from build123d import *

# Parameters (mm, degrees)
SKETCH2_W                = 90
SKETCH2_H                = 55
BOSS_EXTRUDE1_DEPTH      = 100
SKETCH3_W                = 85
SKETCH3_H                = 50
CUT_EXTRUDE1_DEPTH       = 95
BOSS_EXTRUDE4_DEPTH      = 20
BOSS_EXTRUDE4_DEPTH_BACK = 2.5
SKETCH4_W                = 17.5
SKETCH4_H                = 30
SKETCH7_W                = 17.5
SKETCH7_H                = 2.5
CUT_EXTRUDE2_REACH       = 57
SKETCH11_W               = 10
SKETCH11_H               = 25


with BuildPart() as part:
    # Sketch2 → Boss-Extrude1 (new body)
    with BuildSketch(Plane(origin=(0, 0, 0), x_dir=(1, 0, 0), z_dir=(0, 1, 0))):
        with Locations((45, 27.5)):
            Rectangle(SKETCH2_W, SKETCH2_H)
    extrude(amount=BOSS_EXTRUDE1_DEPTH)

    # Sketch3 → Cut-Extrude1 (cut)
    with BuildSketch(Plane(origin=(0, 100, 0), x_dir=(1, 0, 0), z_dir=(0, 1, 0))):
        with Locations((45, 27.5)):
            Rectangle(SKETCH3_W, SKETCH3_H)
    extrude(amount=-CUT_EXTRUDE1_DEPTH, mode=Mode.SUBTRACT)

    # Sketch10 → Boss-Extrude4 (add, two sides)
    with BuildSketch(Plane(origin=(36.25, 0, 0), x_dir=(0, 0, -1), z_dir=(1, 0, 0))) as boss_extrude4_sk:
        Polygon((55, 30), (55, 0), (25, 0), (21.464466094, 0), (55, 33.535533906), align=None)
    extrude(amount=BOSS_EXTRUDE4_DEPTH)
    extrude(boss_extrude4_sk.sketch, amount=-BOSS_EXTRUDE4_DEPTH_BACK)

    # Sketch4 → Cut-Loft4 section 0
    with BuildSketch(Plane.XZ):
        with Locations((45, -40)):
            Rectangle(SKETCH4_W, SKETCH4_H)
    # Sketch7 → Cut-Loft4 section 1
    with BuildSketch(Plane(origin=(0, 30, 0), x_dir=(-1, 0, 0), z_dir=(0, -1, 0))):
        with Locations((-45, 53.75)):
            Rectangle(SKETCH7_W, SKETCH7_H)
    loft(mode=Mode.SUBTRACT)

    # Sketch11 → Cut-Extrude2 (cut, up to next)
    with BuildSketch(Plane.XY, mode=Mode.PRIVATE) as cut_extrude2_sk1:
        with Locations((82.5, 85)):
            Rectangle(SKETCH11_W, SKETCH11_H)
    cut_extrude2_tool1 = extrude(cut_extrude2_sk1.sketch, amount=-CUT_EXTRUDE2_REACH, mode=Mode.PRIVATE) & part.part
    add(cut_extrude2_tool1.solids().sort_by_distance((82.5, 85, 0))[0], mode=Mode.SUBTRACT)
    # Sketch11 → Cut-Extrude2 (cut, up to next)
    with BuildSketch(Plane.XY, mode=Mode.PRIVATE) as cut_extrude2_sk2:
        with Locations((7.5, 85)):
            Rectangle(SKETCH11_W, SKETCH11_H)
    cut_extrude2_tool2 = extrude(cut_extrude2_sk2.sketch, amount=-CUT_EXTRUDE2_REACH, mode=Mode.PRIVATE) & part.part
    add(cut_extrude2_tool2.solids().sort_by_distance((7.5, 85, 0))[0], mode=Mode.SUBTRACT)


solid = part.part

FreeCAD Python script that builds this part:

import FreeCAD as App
import Part
import Sketcher
from FreeCAD import Vector
Q = App.Units.Quantity

doc = App.newDocument("Part")
body = doc.addObject("PartDesign::Body", "Body")

# Sketch on XZ plane
sketch1 = body.newObject("Sketcher::SketchObject", "Sketch")
sketch1.AttachmentSupport = (doc.getObject("XZ_Plane"), [""])
sketch1.MapMode = "FlatFace"
sketch1.addGeometry([
    Part.LineSegment(Vector(0, -55, 0), Vector(0, 0, 0)),
    Part.LineSegment(Vector(0, 0, 0), Vector(90, 0, 0)),
    Part.LineSegment(Vector(90, 0, 0), Vector(90, -55, 0)),
    Part.LineSegment(Vector(90, -55, 0), Vector(0, -55, 0)),
], False)
sketch1.addConstraint([
    Sketcher.Constraint("Coincident", 0, 2, 1, 1),
    Sketcher.Constraint("Coincident", 1, 2, 2, 1),
    Sketcher.Constraint("Coincident", 2, 2, 3, 1),
    Sketcher.Constraint("Coincident", 3, 2, 0, 1),
    Sketcher.Constraint("Vertical", 0),
    Sketcher.Constraint("Horizontal", 1),
    Sketcher.Constraint("Vertical", 2),
    Sketcher.Constraint("Horizontal", 3),
    Sketcher.Constraint("Coincident", 0, 2, -1, 1),
    Sketcher.Constraint("DistanceX", 1, 1, 1, 2, Q("90 mm")),
    Sketcher.Constraint("DistanceY", 0, 1, 0, 2, Q("55 mm")),
])
pad1 = body.newObject("PartDesign::Pad", "Pad")
pad1.Profile = sketch1
pad1.Length = 100
pad1.Reversed = True

# Sketch on XZ plane
sketch2 = body.newObject("Sketcher::SketchObject", "Sketch001")
sketch2.AttachmentSupport = (doc.getObject("XZ_Plane"), [""])
sketch2.MapMode = "FlatFace"
sketch2.AttachmentOffset = App.Placement(Vector(0, 0, -100), App.Rotation())
sketch2.addGeometry([
    Part.LineSegment(Vector(2.5, -52.5, 0), Vector(2.5, -2.5, 0)),
    Part.LineSegment(Vector(2.5, -2.5, 0), Vector(87.5, -2.5, 0)),
    Part.LineSegment(Vector(87.5, -2.5, 0), Vector(87.5, -52.5, 0)),
    Part.LineSegment(Vector(87.5, -52.5, 0), Vector(2.5, -52.5, 0)),
], False)
sketch2.addConstraint([
    Sketcher.Constraint("Coincident", 0, 2, 1, 1),
    Sketcher.Constraint("Coincident", 1, 2, 2, 1),
    Sketcher.Constraint("Coincident", 2, 2, 3, 1),
    Sketcher.Constraint("Coincident", 3, 2, 0, 1),
    Sketcher.Constraint("Vertical", 0),
    Sketcher.Constraint("Horizontal", 1),
    Sketcher.Constraint("Vertical", 2),
    Sketcher.Constraint("Horizontal", 3),
    Sketcher.Constraint("DistanceX", 1, 1, 1, 2, Q("85 mm")),
    Sketcher.Constraint("DistanceY", 0, 1, 0, 2, Q("50 mm")),
    Sketcher.Constraint("DistanceX", -1, 1, 0, 2, Q("2.5 mm")),
    Sketcher.Constraint("DistanceY", 0, 2, -1, 1, Q("2.5 mm")),
])
pocket1 = body.newObject("PartDesign::Pocket", "Pocket")
pocket1.Profile = sketch2
pocket1.Length = 95
pocket1.Reversed = True

# Sketch on YZ plane
sketch3 = body.newObject("Sketcher::SketchObject", "Sketch002")
sketch3.AttachmentSupport = (doc.getObject("YZ_Plane"), [""])
sketch3.MapMode = "FlatFace"
sketch3.AttachmentOffset = App.Placement(Vector(0, 0, 36.25), App.Rotation())
sketch3.addGeometry([
    Part.LineSegment(Vector(0, -55, 0), Vector(33.535534, -55, 0)),
    Part.LineSegment(Vector(33.535534, -55, 0), Vector(0, -21.464466, 0)),
    Part.LineSegment(Vector(0, -21.464466, 0), Vector(0, -55, 0)),
], False)
sketch3.addConstraint([
    Sketcher.Constraint("Coincident", 0, 2, 1, 1),
    Sketcher.Constraint("Coincident", 1, 2, 2, 1),
    Sketcher.Constraint("Coincident", 2, 2, 0, 1),
    Sketcher.Constraint("Horizontal", 0),
    Sketcher.Constraint("Vertical", 2),
    Sketcher.Constraint("PointOnObject", 1, 2, -2),
    Sketcher.Constraint("Equal", 0, 2),
    Sketcher.Constraint("DistanceY", 0, 2, -1, 1, Q("55 mm")),
    Sketcher.Constraint("DistanceX", 0, 1, 0, 2, Q("33.535534 mm")),
])
pad2 = body.newObject("PartDesign::Pad", "Pad001")
pad2.Profile = sketch3
pad2.Type = "TwoLengths"
pad2.Length = 20
pad2.Length2 = 2.5

# Sketch on XZ plane
sketch4 = body.newObject("Sketcher::SketchObject", "Sketch003")
sketch4.AttachmentSupport = (doc.getObject("XZ_Plane"), [""])
sketch4.MapMode = "FlatFace"
sketch4.addGeometry([
    Part.LineSegment(Vector(36.25, -25, 0), Vector(36.25, -55, 0)),
    Part.LineSegment(Vector(36.25, -55, 0), Vector(53.75, -55, 0)),
    Part.LineSegment(Vector(53.75, -55, 0), Vector(53.75, -25, 0)),
    Part.LineSegment(Vector(53.75, -25, 0), Vector(36.25, -25, 0)),
], False)
sketch4.addConstraint([
    Sketcher.Constraint("Coincident", 0, 2, 1, 1),
    Sketcher.Constraint("Coincident", 1, 2, 2, 1),
    Sketcher.Constraint("Coincident", 2, 2, 3, 1),
    Sketcher.Constraint("Coincident", 3, 2, 0, 1),
    Sketcher.Constraint("Vertical", 0),
    Sketcher.Constraint("Horizontal", 1),
    Sketcher.Constraint("Vertical", 2),
    Sketcher.Constraint("Horizontal", 3),
    Sketcher.Constraint("DistanceY", 0, 2, 0, 1, Q("30 mm")),
    Sketcher.Constraint("DistanceX", 1, 1, 1, 2, Q("17.5 mm")),
    Sketcher.Constraint("DistanceY", 0, 2, -1, 1, Q("55 mm")),
    Sketcher.Constraint("DistanceX", -1, 1, 0, 2, Q("36.25 mm")),
])

# Sketch on XZ plane
sketch5 = body.newObject("Sketcher::SketchObject", "Sketch004")
sketch5.AttachmentSupport = (doc.getObject("XZ_Plane"), [""])
sketch5.MapMode = "FlatFace"
sketch5.AttachmentOffset = App.Placement(Vector(0, 0, -30), App.Rotation())
sketch5.addGeometry([
    Part.LineSegment(Vector(53.75, -55, 0), Vector(53.75, -52.5, 0)),
    Part.LineSegment(Vector(53.75, -52.5, 0), Vector(36.25, -52.5, 0)),
    Part.LineSegment(Vector(36.25, -52.5, 0), Vector(36.25, -55, 0)),
    Part.LineSegment(Vector(36.25, -55, 0), Vector(53.75, -55, 0)),
], False)
sketch5.addConstraint([
    Sketcher.Constraint("Coincident", 0, 2, 1, 1),
    Sketcher.Constraint("Coincident", 1, 2, 2, 1),
    Sketcher.Constraint("Coincident", 2, 2, 3, 1),
    Sketcher.Constraint("Coincident", 3, 2, 0, 1),
    Sketcher.Constraint("Vertical", 0),
    Sketcher.Constraint("Horizontal", 1),
    Sketcher.Constraint("Vertical", 2),
    Sketcher.Constraint("Horizontal", 3),
    Sketcher.Constraint("DistanceX", 1, 2, 1, 1, Q("17.5 mm")),
    Sketcher.Constraint("DistanceY", 0, 1, 0, 2, Q("2.5 mm")),
    Sketcher.Constraint("DistanceY", 2, 2, -1, 1, Q("55 mm")),
    Sketcher.Constraint("DistanceX", -1, 1, 0, 2, Q("53.75 mm")),
])

subtractiveloft = body.newObject("PartDesign::SubtractiveLoft", "SubtractiveLoft")
subtractiveloft.Profile = sketch4
subtractiveloft.Sections = [sketch5]

# Sketch on XY plane
sketch6 = body.newObject("Sketcher::SketchObject", "Sketch005")
sketch6.AttachmentSupport = (doc.getObject("XY_Plane"), [""])
sketch6.MapMode = "FlatFace"
sketch6.addGeometry([
    Part.LineSegment(Vector(77.5, 97.5, 0), Vector(77.5, 72.5, 0)),
    Part.LineSegment(Vector(77.5, 72.5, 0), Vector(87.5, 72.5, 0)),
    Part.LineSegment(Vector(87.5, 72.5, 0), Vector(87.5, 97.5, 0)),
    Part.LineSegment(Vector(87.5, 97.5, 0), Vector(77.5, 97.5, 0)),
], False)
sketch6.addConstraint([
    Sketcher.Constraint("Coincident", 0, 2, 1, 1),
    Sketcher.Constraint("Coincident", 1, 2, 2, 1),
    Sketcher.Constraint("Coincident", 2, 2, 3, 1),
    Sketcher.Constraint("Coincident", 3, 2, 0, 1),
    Sketcher.Constraint("Vertical", 0),
    Sketcher.Constraint("Horizontal", 1),
    Sketcher.Constraint("Vertical", 2),
    Sketcher.Constraint("Horizontal", 3),
    Sketcher.Constraint("DistanceX", 1, 1, 1, 2, Q("10 mm")),
    Sketcher.Constraint("DistanceY", 0, 2, 0, 1, Q("25 mm")),
    Sketcher.Constraint("DistanceX", -1, 1, 0, 2, Q("77.5 mm")),
    Sketcher.Constraint("DistanceY", -1, 1, 0, 2, Q("72.5 mm")),
])
pocket2 = body.newObject("PartDesign::Pocket", "Pocket001")
pocket2.Profile = sketch6
pocket2.Type = "UpToFirst"

# Sketch on XY plane
sketch7 = body.newObject("Sketcher::SketchObject", "Sketch006")
sketch7.AttachmentSupport = (doc.getObject("XY_Plane"), [""])
sketch7.MapMode = "FlatFace"
sketch7.addGeometry([
    Part.LineSegment(Vector(2.5, 97.5, 0), Vector(2.5, 72.5, 0)),
    Part.LineSegment(Vector(2.5, 72.5, 0), Vector(12.5, 72.5, 0)),
    Part.LineSegment(Vector(12.5, 72.5, 0), Vector(12.5, 97.5, 0)),
    Part.LineSegment(Vector(12.5, 97.5, 0), Vector(2.5, 97.5, 0)),
], False)
sketch7.addConstraint([
    Sketcher.Constraint("Coincident", 0, 2, 1, 1),
    Sketcher.Constraint("Coincident", 1, 2, 2, 1),
    Sketcher.Constraint("Coincident", 2, 2, 3, 1),
    Sketcher.Constraint("Coincident", 3, 2, 0, 1),
    Sketcher.Constraint("Vertical", 0),
    Sketcher.Constraint("Horizontal", 1),
    Sketcher.Constraint("Vertical", 2),
    Sketcher.Constraint("Horizontal", 3),
    Sketcher.Constraint("DistanceX", 1, 1, 1, 2, Q("10 mm")),
    Sketcher.Constraint("DistanceY", 0, 2, 0, 1, Q("25 mm")),
    Sketcher.Constraint("DistanceX", -1, 1, 0, 2, Q("2.5 mm")),
    Sketcher.Constraint("DistanceY", -1, 1, 0, 2, Q("72.5 mm")),
])
pocket3 = body.newObject("PartDesign::Pocket", "Pocket002")
pocket3.Profile = sketch7
pocket3.Type = "UpToFirst"

doc.recompute()
